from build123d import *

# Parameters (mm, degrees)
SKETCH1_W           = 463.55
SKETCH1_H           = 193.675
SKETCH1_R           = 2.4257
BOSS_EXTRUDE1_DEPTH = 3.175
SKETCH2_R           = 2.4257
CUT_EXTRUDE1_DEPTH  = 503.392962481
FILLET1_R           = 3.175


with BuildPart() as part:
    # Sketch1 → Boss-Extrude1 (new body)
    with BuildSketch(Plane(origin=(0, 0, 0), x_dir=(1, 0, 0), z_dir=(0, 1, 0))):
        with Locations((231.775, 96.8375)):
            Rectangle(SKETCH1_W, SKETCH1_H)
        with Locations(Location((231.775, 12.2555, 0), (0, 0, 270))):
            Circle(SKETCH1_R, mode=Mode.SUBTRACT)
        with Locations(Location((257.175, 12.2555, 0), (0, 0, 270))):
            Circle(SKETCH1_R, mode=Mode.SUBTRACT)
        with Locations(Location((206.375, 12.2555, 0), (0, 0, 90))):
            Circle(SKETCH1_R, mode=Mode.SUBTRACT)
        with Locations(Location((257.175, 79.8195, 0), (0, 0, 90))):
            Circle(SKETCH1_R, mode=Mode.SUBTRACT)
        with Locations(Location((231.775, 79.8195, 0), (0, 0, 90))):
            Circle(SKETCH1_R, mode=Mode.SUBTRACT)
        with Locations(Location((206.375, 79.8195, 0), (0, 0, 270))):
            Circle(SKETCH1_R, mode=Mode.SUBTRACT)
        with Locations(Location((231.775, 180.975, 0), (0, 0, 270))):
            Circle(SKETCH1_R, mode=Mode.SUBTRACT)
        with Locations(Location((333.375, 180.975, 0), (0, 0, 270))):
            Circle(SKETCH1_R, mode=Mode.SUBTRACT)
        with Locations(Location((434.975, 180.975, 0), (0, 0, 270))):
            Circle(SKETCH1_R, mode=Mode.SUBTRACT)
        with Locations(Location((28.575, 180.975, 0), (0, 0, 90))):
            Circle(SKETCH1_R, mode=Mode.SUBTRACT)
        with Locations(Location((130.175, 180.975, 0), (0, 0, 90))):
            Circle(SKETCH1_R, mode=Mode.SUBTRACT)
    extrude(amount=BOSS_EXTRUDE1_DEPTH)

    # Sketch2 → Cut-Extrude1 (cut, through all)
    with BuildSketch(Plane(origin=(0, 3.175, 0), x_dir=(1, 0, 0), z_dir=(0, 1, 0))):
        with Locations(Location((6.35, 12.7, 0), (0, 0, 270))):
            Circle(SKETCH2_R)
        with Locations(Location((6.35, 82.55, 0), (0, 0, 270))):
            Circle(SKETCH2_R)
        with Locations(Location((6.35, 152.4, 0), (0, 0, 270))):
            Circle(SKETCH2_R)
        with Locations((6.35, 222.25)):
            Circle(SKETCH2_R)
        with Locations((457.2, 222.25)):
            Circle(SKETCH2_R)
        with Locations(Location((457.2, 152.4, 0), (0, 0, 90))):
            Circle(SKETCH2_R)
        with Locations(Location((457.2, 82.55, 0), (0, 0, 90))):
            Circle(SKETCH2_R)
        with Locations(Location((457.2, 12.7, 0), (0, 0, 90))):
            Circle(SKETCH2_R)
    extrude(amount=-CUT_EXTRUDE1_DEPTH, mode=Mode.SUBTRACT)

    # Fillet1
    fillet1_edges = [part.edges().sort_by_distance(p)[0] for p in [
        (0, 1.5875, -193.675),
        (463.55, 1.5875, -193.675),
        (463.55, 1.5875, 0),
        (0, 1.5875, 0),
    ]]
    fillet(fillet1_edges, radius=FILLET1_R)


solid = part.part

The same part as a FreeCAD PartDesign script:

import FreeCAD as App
import Part
import Sketcher
Q = App.Units.Quantity


def edges_at(feature, points):
    """Names of the edges that pass closest to the given points."""
    edges = feature.Shape.Edges
    near = lambda p: min(range(len(edges)), key=lambda i: edges[i].distToShape(Part.Vertex(*p))[0])
    return sorted({f"Edge{near(p) + 1}" for p in points})


def add_polygon(sketch, points):
    """Adds a closed chain of lines whose ends are joined by coincident constraints."""
    first, n = sketch.GeometryCount, len(points)
    for a, b in zip(points, points[1:] + points[:1]):
        sketch.addGeometry(Part.LineSegment(App.Vector(*a, 0), App.Vector(*b, 0)), False)
    for i in range(n):
        sketch.addConstraint(Sketcher.Constraint("Coincident", first + i, 2, first + (i + 1) % n, 1))

doc = App.newDocument("Part")
body = doc.addObject("PartDesign::Body", "Body")

# Sketch on XZ plane
sketch1 = body.newObject("Sketcher::SketchObject", "Sketch")
sketch1.AttachmentSupport = (doc.getObject("XZ_Plane"), [""])
sketch1.MapMode = "FlatFace"
add_polygon(sketch1, [(0, -193.7), (0, 0), (463.6, 0), (463.6, -193.7)])  # lines 0-3
sketch1.addGeometry(Part.Circle(App.Vector(206.4, -12.3, 0), App.Vector(0, 0, 1), 2.4), False)  # 4
sketch1.addGeometry(Part.Circle(App.Vector(206.4, -79.8, 0), App.Vector(0, 0, 1), 2.4), False)  # 5
sketch1.addGeometry(Part.Circle(App.Vector(231.8, -12.3, 0), App.Vector(0, 0, 1), 2.4), False)  # 6
sketch1.addGeometry(Part.Circle(App.Vector(257.2, -12.3, 0), App.Vector(0, 0, 1), 2.4), False)  # 7
sketch1.addGeometry(Part.Circle(App.Vector(231.8, -79.8, 0), App.Vector(0, 0, 1), 2.4), False)  # 8
sketch1.addGeometry(Part.Circle(App.Vector(257.2, -79.8, 0), App.Vector(0, 0, 1), 2.4), False)  # 9
sketch1.addGeometry(Part.Circle(App.Vector(28.6, -181, 0), App.Vector(0, 0, 1), 2.4), False)  # 10
sketch1.addGeometry(Part.Circle(App.Vector(130.2, -181, 0), App.Vector(0, 0, 1), 2.4), False)  # 11
sketch1.addGeometry(Part.Circle(App.Vector(231.8, -181, 0), App.Vector(0, 0, 1), 2.4), False)  # 12
sketch1.addGeometry(Part.Circle(App.Vector(333.4, -181, 0), App.Vector(0, 0, 1), 2.4), False)  # 13
sketch1.addGeometry(Part.Circle(App.Vector(435, -181, 0), App.Vector(0, 0, 1), 2.4), False)  # 14
sketch1.addConstraint([
    Sketcher.Constraint("Vertical", 0),
    Sketcher.Constraint("Horizontal", 1),
    Sketcher.Constraint("Vertical", 2),
    Sketcher.Constraint("Horizontal", 3),
    Sketcher.Constraint("Coincident", 0, 2, -1, 1),
    Sketcher.Constraint("Equal", 4, 5),
    Sketcher.Constraint("Equal", 5, 6),
    Sketcher.Constraint("Equal", 6, 7),
    Sketcher.Constraint("Equal", 7, 8),
    Sketcher.Constraint("Equal", 8, 9),
    Sketcher.Constraint("Equal", 9, 10),
    Sketcher.Constraint("Equal", 10, 11),
    Sketcher.Constraint("Equal", 11, 12),
    Sketcher.Constraint("Equal", 12, 13),
    Sketcher.Constraint("Equal", 13, 14),
    Sketcher.Constraint("Horizontal", 4, 3, 6, 3),
    Sketcher.Constraint("Horizontal", 6, 3, 7, 3),
    Sketcher.Constraint("Horizontal", 5, 3, 8, 3),
    Sketcher.Constraint("Horizontal", 8, 3, 9, 3),
    Sketcher.Constraint("Horizontal", 10, 3, 11, 3),
    Sketcher.Constraint("Horizontal", 11, 3, 12, 3),
    Sketcher.Constraint("Horizontal", 12, 3, 13, 3),
    Sketcher.Constraint("Horizontal", 13, 3, 14, 3),
    Sketcher.Constraint("Vertical", 4, 3, 5, 3),
    Sketcher.Constraint("Vertical", 6, 3, 8, 3),
    Sketcher.Constraint("Vertical", 7, 3, 9, 3),
    Sketcher.Constraint("Vertical", 8, 3, 12, 3),
    Sketcher.Constraint("Diameter", 4, Q("0.191 in")),
    Sketcher.Constraint("DistanceX", 4, 3, 6, 3, Q("1 in")),
    Sketcher.Constraint("DistanceX", 6, 3, 7, 3, Q("1 in")),
    Sketcher.Constraint("DistanceX", 10, 3, 5, 3, Q("7 in")),
    Sketcher.Constraint("DistanceX", 10, 3, 11, 3, Q("4 in")),
    Sketcher.Constraint("DistanceX", 12, 3, 13, 3, Q("4 in")),
    Sketcher.Constraint("DistanceX", 13, 3, 14, 3, Q("4 in")),
    Sketcher.Constraint("DistanceX", 1, 1, 1, 2, Q("18.25 in")),
    Sketcher.Constraint("DistanceY", 2, 2, 14, 3, Q("0.5 in")),
    Sketcher.Constraint("DistanceY", 0, 1, 0, 2, Q("7.625 in")),
    Sketcher.Constraint("DistanceY", 5, 3, 4, 3, Q("2.66 in")),
    Sketcher.Constraint("DistanceX", -1, 1, 4, 3, Q("8.125 in")),
    Sketcher.Constraint("DistanceY", 4, 3, -1, 1, Q("0.4825 in")),
])
pad1 = body.newObject("PartDesign::Pad", "Pad")
pad1.Profile = sketch1
pad1.Length = Q("0.125 in")
pad1.Reversed = True

# Sketch on XZ plane
sketch2 = body.newObject("Sketcher::SketchObject", "Sketch001")
sketch2.AttachmentSupport = (doc.getObject("XZ_Plane"), [""])
sketch2.MapMode = "FlatFace"
sketch2.AttachmentOffset = App.Placement(App.Vector(0, 0, -0.125 * 25.4), App.Rotation())
sketch2.addGeometry([
    Part.Circle(App.Vector(6.3, -12.7, 0), App.Vector(0, 0, 1), 2.4),  # 0
    Part.Circle(App.Vector(6.3, -82.5, 0), App.Vector(0, 0, 1), 2.4),  # 1
    Part.Circle(App.Vector(6.3, -152.4, 0), App.Vector(0, 0, 1), 2.4),  # 2
    Part.Circle(App.Vector(6.3, -222.2, 0), App.Vector(0, 0, 1), 2.4),  # 3
    Part.Circle(App.Vector(457.2, -222.2, 0), App.Vector(0, 0, 1), 2.4),  # 4
    Part.Circle(App.Vector(457.2, -152.4, 0), App.Vector(0, 0, 1), 2.4),  # 5
    Part.Circle(App.Vector(457.2, -82.5, 0), App.Vector(0, 0, 1), 2.4),  # 6
    Part.Circle(App.Vector(457.2, -12.7, 0), App.Vector(0, 0, 1), 2.4),  # 7
], False)
sketch2.addConstraint([
    Sketcher.Constraint("Equal", 0, 1),
    Sketcher.Constraint("Equal", 1, 2),
    Sketcher.Constraint("Equal", 2, 3),
    Sketcher.Constraint("Equal", 3, 4),
    Sketcher.Constraint("Equal", 4, 5),
    Sketcher.Constraint("Equal", 5, 6),
    Sketcher.Constraint("Equal", 6, 7),
    Sketcher.Constraint("Horizontal", 3, 3, 4, 3),
    Sketcher.Constraint("Horizontal", 2, 3, 5, 3),
    Sketcher.Constraint("Horizontal", 1, 3, 6, 3),
    Sketcher.Constraint("Horizontal", 0, 3, 7, 3),
    Sketcher.Constraint("Vertical", 0, 3, 1, 3),
    Sketcher.Constraint("Vertical", 1, 3, 2, 3),
    Sketcher.Constraint("Vertical", 2, 3, 3, 3),
    Sketcher.Constraint("Vertical", 4, 3, 5, 3),
    Sketcher.Constraint("Vertical", 5, 3, 6, 3),
    Sketcher.Constraint("Vertical", 6, 3, 7, 3),
    Sketcher.Constraint("Diameter", 0, Q("0.191 in")),
    Sketcher.Constraint("DistanceY", 2, 3, -1, 1, Q("6 in")),
    Sketcher.Constraint("DistanceX", -1, 1, 4, 3, Q("18 in")),
    Sketcher.Constraint("DistanceY", 0, 3, -1, 1, Q("0.5 in")),
    Sketcher.Constraint("DistanceY", 3, 3, 1, 3, Q("5.5 in")),
    Sketcher.Constraint("DistanceX", -1, 1, 0, 3, Q("0.25 in")),
    Sketcher.Constraint("DistanceY", 1, 3, -1, 1, Q("3.25 in")),
])
pocket1 = body.newObject("PartDesign::Pocket", "Pocket")
pocket1.Profile = sketch2
pocket1.Type = "ThroughAll"
pocket1.Reversed = True
doc.recompute()

fillet = body.newObject("PartDesign::Fillet", "Fillet")
fillet.Base = (pocket1, edges_at(pocket1, [
    (0, 1.587, -193.675),
    (463.55, 1.587, -193.675),
    (463.55, 1.587, 0),
    (0, 1.587, 0),
]))
fillet.Radius = Q("0.125 in")

doc.recompute()
